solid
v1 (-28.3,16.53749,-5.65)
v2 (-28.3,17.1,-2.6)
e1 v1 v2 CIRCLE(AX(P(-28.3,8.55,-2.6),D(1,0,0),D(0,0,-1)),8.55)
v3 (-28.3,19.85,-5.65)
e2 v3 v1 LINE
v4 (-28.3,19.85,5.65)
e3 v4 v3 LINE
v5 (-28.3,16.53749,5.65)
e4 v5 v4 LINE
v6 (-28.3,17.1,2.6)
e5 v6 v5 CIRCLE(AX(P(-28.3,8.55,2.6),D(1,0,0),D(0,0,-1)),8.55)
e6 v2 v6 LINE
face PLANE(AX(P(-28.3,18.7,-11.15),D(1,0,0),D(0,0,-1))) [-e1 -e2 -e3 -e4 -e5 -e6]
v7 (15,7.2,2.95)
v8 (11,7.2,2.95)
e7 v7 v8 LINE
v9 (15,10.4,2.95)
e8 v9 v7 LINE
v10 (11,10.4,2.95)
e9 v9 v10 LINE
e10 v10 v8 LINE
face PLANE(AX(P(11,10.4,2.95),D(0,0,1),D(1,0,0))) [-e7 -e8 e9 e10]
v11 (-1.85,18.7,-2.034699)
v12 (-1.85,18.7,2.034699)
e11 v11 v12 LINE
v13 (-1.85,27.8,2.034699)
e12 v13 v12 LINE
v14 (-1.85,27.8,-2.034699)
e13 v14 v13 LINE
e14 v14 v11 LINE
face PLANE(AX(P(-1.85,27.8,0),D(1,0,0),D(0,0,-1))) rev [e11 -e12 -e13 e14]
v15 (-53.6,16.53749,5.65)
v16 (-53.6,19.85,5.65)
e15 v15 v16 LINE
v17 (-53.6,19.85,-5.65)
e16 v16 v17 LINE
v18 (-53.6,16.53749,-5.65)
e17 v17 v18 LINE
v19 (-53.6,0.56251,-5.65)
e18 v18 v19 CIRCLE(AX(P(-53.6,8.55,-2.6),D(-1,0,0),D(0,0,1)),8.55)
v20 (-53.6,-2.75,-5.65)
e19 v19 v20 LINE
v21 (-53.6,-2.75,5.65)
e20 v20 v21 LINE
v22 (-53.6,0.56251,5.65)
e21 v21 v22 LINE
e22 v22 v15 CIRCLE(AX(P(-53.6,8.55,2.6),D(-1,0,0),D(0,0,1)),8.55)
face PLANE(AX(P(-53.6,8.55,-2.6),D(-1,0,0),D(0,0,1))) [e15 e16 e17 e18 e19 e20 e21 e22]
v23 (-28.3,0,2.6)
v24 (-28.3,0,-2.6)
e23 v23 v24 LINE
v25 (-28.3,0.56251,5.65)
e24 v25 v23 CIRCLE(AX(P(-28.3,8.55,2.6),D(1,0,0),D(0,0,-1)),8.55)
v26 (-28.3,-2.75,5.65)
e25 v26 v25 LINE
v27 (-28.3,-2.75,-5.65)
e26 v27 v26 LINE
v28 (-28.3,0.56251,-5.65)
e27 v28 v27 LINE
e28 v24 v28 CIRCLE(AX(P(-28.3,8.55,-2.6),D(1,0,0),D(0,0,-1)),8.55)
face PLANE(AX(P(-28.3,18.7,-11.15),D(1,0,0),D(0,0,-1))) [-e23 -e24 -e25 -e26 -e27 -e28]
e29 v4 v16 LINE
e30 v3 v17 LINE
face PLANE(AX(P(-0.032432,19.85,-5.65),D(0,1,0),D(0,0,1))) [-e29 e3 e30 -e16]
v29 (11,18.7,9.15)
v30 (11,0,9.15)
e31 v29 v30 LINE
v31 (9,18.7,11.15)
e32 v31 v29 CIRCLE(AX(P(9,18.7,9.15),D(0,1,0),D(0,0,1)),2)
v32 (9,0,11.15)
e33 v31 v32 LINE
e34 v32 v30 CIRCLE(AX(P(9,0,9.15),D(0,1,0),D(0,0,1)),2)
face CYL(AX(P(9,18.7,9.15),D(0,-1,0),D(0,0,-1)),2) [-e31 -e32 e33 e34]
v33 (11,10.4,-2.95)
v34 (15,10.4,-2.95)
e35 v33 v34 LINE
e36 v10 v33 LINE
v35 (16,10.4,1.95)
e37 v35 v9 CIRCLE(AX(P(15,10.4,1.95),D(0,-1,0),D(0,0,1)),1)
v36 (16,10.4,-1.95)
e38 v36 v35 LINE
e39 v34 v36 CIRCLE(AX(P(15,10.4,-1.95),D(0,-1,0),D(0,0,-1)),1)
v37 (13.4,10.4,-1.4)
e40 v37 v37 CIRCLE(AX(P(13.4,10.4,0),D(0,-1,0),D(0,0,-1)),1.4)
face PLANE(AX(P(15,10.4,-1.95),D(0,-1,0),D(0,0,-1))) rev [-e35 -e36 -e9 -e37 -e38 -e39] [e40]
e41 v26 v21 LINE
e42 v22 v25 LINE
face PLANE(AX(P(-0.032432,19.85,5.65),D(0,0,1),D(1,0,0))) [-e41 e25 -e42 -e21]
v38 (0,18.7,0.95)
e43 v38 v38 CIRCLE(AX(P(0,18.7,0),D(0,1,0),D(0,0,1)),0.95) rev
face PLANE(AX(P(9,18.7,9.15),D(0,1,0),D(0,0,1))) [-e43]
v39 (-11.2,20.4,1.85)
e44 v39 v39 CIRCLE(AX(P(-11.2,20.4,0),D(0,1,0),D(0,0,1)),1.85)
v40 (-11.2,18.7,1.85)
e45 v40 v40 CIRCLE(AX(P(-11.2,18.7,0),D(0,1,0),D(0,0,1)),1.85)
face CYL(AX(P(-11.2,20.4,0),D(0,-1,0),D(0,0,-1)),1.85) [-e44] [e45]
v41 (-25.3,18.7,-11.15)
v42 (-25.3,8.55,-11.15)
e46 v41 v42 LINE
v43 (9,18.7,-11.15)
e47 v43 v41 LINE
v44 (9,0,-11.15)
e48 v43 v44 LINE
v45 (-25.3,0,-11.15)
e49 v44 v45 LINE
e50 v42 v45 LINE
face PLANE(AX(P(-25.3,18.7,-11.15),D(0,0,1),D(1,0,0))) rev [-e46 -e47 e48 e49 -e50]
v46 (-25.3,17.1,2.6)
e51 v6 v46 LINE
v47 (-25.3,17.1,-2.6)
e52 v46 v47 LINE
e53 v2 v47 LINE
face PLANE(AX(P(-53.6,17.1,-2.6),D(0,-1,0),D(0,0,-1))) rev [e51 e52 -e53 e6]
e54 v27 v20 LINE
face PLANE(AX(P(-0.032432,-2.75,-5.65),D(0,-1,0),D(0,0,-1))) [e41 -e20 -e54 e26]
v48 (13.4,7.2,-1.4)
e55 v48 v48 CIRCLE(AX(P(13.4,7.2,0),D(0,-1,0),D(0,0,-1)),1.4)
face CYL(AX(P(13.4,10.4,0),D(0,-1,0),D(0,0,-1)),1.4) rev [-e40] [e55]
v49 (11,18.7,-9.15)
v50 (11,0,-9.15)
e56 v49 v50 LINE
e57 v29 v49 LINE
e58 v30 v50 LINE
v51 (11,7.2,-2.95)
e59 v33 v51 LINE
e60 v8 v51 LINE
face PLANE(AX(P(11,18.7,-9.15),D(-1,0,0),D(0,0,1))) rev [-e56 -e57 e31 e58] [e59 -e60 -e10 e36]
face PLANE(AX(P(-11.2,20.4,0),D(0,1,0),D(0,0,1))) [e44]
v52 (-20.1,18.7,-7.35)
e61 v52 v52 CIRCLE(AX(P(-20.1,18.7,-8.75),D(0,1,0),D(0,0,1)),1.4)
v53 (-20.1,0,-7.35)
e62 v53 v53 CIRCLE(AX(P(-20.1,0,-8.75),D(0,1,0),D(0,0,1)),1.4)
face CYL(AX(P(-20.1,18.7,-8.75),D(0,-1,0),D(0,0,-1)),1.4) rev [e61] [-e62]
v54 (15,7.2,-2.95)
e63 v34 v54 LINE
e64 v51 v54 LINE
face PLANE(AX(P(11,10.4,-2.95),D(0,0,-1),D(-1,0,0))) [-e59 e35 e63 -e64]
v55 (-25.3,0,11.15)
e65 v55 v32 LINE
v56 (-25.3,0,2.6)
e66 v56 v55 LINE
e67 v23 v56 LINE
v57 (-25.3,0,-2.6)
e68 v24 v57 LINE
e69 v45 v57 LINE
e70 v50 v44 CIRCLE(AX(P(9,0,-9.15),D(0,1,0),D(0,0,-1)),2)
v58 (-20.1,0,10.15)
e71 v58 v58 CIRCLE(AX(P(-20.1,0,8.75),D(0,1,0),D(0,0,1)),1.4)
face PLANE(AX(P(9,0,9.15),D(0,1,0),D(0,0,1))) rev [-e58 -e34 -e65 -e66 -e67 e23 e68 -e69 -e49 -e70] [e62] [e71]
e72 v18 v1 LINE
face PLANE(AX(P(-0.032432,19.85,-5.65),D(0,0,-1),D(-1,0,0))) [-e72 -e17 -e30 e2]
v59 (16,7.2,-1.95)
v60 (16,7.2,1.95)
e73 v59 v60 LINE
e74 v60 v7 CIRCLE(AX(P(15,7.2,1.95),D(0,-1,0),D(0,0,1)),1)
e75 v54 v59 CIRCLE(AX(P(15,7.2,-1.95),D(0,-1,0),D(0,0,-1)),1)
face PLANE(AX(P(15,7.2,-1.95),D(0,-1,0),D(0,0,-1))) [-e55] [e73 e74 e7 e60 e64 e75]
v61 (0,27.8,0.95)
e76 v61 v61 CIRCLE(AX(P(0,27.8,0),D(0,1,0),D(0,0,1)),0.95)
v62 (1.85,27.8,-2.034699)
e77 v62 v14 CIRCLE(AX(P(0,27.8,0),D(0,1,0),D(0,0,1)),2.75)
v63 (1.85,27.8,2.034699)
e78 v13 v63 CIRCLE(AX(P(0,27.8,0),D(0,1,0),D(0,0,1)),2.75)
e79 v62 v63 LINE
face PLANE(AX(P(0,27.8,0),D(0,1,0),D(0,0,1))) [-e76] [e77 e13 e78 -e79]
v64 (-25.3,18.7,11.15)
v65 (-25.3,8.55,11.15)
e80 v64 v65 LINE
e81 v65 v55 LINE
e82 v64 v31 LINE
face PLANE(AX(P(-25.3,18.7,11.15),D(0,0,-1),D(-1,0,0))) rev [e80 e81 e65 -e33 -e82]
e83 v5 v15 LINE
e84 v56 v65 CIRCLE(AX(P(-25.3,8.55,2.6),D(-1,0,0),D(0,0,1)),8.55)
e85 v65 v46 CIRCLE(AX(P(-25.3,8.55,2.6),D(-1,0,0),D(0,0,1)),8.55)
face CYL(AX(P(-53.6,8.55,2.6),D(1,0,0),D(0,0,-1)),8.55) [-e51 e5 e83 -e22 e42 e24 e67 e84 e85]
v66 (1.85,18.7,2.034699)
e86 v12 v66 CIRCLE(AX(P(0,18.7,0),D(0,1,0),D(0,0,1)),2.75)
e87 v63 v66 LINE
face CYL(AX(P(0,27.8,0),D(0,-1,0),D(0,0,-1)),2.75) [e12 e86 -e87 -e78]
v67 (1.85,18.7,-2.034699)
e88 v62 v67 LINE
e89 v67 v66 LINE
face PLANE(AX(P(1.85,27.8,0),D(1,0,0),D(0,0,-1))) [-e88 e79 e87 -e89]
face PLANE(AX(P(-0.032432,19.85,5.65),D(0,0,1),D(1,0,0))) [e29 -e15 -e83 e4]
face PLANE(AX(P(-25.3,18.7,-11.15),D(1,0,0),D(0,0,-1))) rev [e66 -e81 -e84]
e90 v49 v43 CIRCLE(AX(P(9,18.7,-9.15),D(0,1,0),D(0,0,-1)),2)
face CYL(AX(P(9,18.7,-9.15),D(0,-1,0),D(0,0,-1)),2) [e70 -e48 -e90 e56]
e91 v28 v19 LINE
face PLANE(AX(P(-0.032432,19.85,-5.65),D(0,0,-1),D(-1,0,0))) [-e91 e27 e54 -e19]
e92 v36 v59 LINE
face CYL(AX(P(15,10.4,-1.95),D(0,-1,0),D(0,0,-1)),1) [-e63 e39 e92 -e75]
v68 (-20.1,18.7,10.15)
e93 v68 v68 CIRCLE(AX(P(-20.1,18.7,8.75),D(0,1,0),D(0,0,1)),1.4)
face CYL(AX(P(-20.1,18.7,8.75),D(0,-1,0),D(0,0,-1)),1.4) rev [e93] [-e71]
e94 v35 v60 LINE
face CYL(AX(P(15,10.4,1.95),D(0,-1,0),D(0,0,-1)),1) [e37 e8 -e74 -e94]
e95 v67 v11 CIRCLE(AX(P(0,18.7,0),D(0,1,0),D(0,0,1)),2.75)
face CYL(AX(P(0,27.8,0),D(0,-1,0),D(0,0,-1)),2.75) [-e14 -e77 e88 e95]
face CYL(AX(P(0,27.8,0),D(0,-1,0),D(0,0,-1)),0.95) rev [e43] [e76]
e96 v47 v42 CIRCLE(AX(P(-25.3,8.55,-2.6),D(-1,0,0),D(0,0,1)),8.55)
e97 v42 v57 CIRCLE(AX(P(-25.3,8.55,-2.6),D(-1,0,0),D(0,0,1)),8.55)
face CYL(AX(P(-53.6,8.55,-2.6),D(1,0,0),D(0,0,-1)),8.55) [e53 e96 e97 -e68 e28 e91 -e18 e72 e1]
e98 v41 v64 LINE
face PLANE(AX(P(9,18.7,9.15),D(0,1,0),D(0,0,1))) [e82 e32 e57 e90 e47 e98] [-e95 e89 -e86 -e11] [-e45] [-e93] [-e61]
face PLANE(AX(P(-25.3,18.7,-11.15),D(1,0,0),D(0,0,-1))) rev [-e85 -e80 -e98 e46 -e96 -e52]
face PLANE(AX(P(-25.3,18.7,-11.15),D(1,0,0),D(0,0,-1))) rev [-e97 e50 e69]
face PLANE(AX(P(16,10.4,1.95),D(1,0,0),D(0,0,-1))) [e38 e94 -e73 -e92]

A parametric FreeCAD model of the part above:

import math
import FreeCAD as App
import Part
import Sketcher

doc = App.newDocument("Part")
body = doc.addObject("PartDesign::Body", "Body")

# Sketch on XZ plane
sketch1 = body.newObject("Sketcher::SketchObject", "Sketch")
sketch1.AttachmentSupport = (doc.getObject("XZ_Plane"), [""])
sketch1.MapMode = "FlatFace"
sketch1.addGeometry([
    Part.LineSegment(App.Vector(9, -11.2, 0), App.Vector(-25.3, -11.2, 0)),  # 0
    Part.LineSegment(App.Vector(-25.3, -11.2, 0), App.Vector(-25.3, 11.2, 0)),  # 1
    Part.LineSegment(App.Vector(-25.3, 11.2, 0), App.Vector(9, 11.2, 0)),  # 2
    Part.ArcOfCircle(Part.Circle(App.Vector(9, 9.1, 0), App.Vector(0, 0, 1), 2), math.radians(0), math.radians(90)),  # 3
    Part.LineSegment(App.Vector(11, 9.2, 0), App.Vector(11, -9.2, 0)),  # 4
    Part.ArcOfCircle(Part.Circle(App.Vector(9, -9.1, 0), App.Vector(0, 0, 1), 2), math.radians(-90), math.radians(0)),  # 5
    Part.Circle(App.Vector(-20.1, 8.8, 0), App.Vector(0, 0, 1), 1.4),  # 6
    Part.Circle(App.Vector(-20.1, -8.8, 0), App.Vector(0, 0, 1), 1.4),  # 7
], False)
sketch1.addConstraint([
    Sketcher.Constraint("Coincident", 0, 2, 1, 1),
    Sketcher.Constraint("Coincident", 1, 2, 2, 1),
    Sketcher.Constraint("Tangent", 2, 2, 3, 2),
    Sketcher.Constraint("Tangent", 3, 1, 4, 1),
    Sketcher.Constraint("Tangent", 4, 2, 5, 2),
    Sketcher.Constraint("Tangent", 5, 1, 0, 1),
    Sketcher.Constraint("Horizontal", 0),
    Sketcher.Constraint("Vertical", 1),
    Sketcher.Constraint("Horizontal", 2),
    Sketcher.Constraint("Vertical", 4),
    Sketcher.Constraint("Equal", 3, 5),
    Sketcher.Constraint("Equal", 6, 7),
    Sketcher.Constraint("Symmetric", 6, 3, 7, 3, -1),
    Sketcher.Constraint("Radius", 3, 2.0),
    Sketcher.Constraint("Diameter", 6, 2.8),
    Sketcher.Constraint("DistanceX", 0, 2, 0, 1, 34.3),
    Sketcher.Constraint("DistanceY", 1, 1, 1, 2, 22.3),
    Sketcher.Constraint("DistanceX", -1, 1, 3, 3, 9.0),
    Sketcher.Constraint("DistanceX", 6, 3, -1, 1, 20.1),
    Sketcher.Constraint("DistanceY", 6, 3, 3, 3, 0.4),
    Sketcher.Constraint("DistanceY", 7, 3, 6, 3, 17.5),
])
pad1 = body.newObject("PartDesign::Pad", "Pad")
pad1.Profile = sketch1
pad1.Length = 18.7
pad1.Reversed = True

# Sketch on XZ plane
sketch2 = body.newObject("Sketcher::SketchObject", "Sketch001")
sketch2.AttachmentSupport = (doc.getObject("XZ_Plane"), [""])
sketch2.MapMode = "FlatFace"
sketch2.AttachmentOffset = App.Placement(App.Vector(0, 0, -18.7), App.Rotation())
sketch2.addGeometry([
    Part.ArcOfCircle(Part.Circle(App.Vector(0, 0, 0), App.Vector(0, 0, 1), 2.8), math.radians(-132), math.radians(-48)),  # 0
    Part.LineSegment(App.Vector(-1.9, -2, 0), App.Vector(-1.9, 2, 0)),  # 1
    Part.ArcOfCircle(Part.Circle(App.Vector(0, 0, 0), App.Vector(0, 0, 1), 2.8), math.radians(48), math.radians(132)),  # 2
    Part.LineSegment(App.Vector(1.9, 2, 0), App.Vector(1.9, -2, 0)),  # 3
    Part.Circle(App.Vector(0, 0, 0), App.Vector(0, 0, 1), 0.9),  # 4
], False)
sketch2.addConstraint([
    Sketcher.Constraint("Coincident", 0, 1, 1, 1),
    Sketcher.Constraint("Coincident", 1, 2, 2, 2),
    Sketcher.Constraint("Coincident", 2, 1, 3, 1),
    Sketcher.Constraint("Coincident", 3, 2, 0, 2),
    Sketcher.Constraint("Vertical", 1),
    Sketcher.Constraint("Vertical", 3),
    Sketcher.Constraint("Coincident", 0, 3, -1, 1),
    Sketcher.Constraint("Coincident", 2, 3, -1, 1),
    Sketcher.Constraint("Coincident", 4, 3, -1, 1),
    Sketcher.Constraint("Equal", 0, 2),
    Sketcher.Constraint("Horizontal", 1, 2, 2, 1),
    Sketcher.Constraint("Diameter", 4, 1.9),
    Sketcher.Constraint("Radius", 0, 2.75),
    Sketcher.Constraint("DistanceX", 1, 2, 2, 1, 3.7),
])
pad2 = body.newObject("PartDesign::Pad", "Pad001")
pad2.Profile = sketch2
pad2.Length = 9.1
pad2.Reversed = True

# Sketch on XZ plane
sketch3 = body.newObject("Sketcher::SketchObject", "Sketch002")
sketch3.AttachmentSupport = (doc.getObject("XZ_Plane"), [""])
sketch3.MapMode = "FlatFace"
sketch3.AttachmentOffset = App.Placement(App.Vector(0, 0, -18.7), App.Rotation())
sketch3.addGeometry(Part.Circle(App.Vector(-11.2, 0, 0), App.Vector(0, 0, 1), 1.9), False)
sketch3.addConstraint([
    Sketcher.Constraint("PointOnObject", 0, 3, -1),
    Sketcher.Constraint("Diameter", 0, 3.7),
    Sketcher.Constraint("DistanceX", 0, 3, -1, 1, 11.2),
])
pad3 = body.newObject("PartDesign::Pad", "Pad002")
pad3.Profile = sketch3
pad3.Length = 1.7
pad3.Reversed = True

# Sketch on XZ plane
sketch4 = body.newObject("Sketcher::SketchObject", "Sketch003")
sketch4.AttachmentSupport = (doc.getObject("XZ_Plane"), [""])
sketch4.MapMode = "FlatFace"
sketch4.AttachmentOffset = App.Placement(App.Vector(0, 0, -7.2), App.Rotation())
sketch4.addGeometry([
    Part.LineSegment(App.Vector(15, 3, 0), App.Vector(11, 3, 0)),  # 0
    Part.LineSegment(App.Vector(11, 3, 0), App.Vector(11, -3, 0)),  # 1
    Part.LineSegment(App.Vector(11, -3, 0), App.Vector(15, -3, 0)),  # 2
    Part.ArcOfCircle(Part.Circle(App.Vector(15, -1.9, 0), App.Vector(0, 0, 1), 1), math.radians(-90), math.radians(0)),  # 3
    Part.LineSegment(App.Vector(16, -1.9, 0), App.Vector(16, 1.9, 0)),  # 4
    Part.ArcOfCircle(Part.Circle(App.Vector(15, 1.9, 0), App.Vector(0, 0, 1), 1), math.radians(0), math.radians(90)),  # 5
    Part.Circle(App.Vector(13.4, 0, 0), App.Vector(0, 0, 1), 1.4),  # 6
], False)
sketch4.addConstraint([
    Sketcher.Constraint("Coincident", 0, 2, 1, 1),
    Sketcher.Constraint("Coincident", 1, 2, 2, 1),
    Sketcher.Constraint("Tangent", 2, 2, 3, 1),
    Sketcher.Constraint("Tangent", 3, 2, 4, 1),
    Sketcher.Constraint("Tangent", 4, 2, 5, 1),
    Sketcher.Constraint("Tangent", 5, 2, 0, 1),
    Sketcher.Constraint("Horizontal", 0),
    Sketcher.Constraint("Vertical", 1),
    Sketcher.Constraint("Horizontal", 2),
    Sketcher.Constraint("Vertical", 4),
    Sketcher.Constraint("Equal", 3, 5),
    Sketcher.Constraint("PointOnObject", 6, 3, -1),
    Sketcher.Constraint("Radius", 3, 1.0),
    Sketcher.Constraint("Diameter", 6, 2.8),
    Sketcher.Constraint("DistanceX", 0, 2, 0, 1, 4.0),
    Sketcher.Constraint("DistanceY", 1, 2, 1, 1, 5.9),
    Sketcher.Constraint("DistanceX", -1, 1, 3, 3, 15.0),
    Sketcher.Constraint("DistanceX", -1, 1, 6, 3, 13.4),
    Sketcher.Constraint("DistanceY", 3, 3, -1, 1, 1.95),
])
pad4 = body.newObject("PartDesign::Pad", "Pad003")
pad4.Profile = sketch4
pad4.Length = 3.2
pad4.Reversed = True

# Sketch on YZ plane
sketch5 = body.newObject("Sketcher::SketchObject", "Sketch004")
sketch5.AttachmentSupport = (doc.getObject("YZ_Plane"), [""])
sketch5.MapMode = "FlatFace"
sketch5.AttachmentOffset = App.Placement(App.Vector(0, 0, -25.3), App.Rotation())
sketch5.addGeometry([
    Part.LineSegment(App.Vector(17, 3, 0), App.Vector(17, -3, 0)),
    Part.ArcOfCircle(Part.Circle(App.Vector(9, -3, 0), App.Vector(0, 0, 1), 9), math.radians(180), math.radians(360)),
    Part.LineSegment(App.Vector(0, -3, 0), App.Vector(0, 3, 0)),
    Part.ArcOfCircle(Part.Circle(App.Vector(9, 3, 0), App.Vector(0, 0, 1), 9), math.radians(0), math.radians(180)),
], False)
sketch5.addConstraint([
    Sketcher.Constraint("Tangent", 0, 2, 1, 2),
    Sketcher.Constraint("Tangent", 1, 1, 2, 1),
    Sketcher.Constraint("Tangent", 2, 2, 3, 2),
    Sketcher.Constraint("Tangent", 3, 1, 0, 1),
    Sketcher.Constraint("Vertical", 0),
    Sketcher.Constraint("Vertical", 2),
    Sketcher.Constraint("Symmetric", 1, 1, 2, 2, -1, 1),
    Sketcher.Constraint("Radius", 1, 8.55),
    Sketcher.Constraint("DistanceY", 0, 2, 0, 1, 5.2),
])
pad5 = body.newObject("PartDesign::Pad", "Pad004")
pad5.Profile = sketch5
pad5.Length = 28.3
pad5.Reversed = True

# Sketch on YZ plane
sketch6 = body.newObject("Sketcher::SketchObject", "Sketch005")
sketch6.AttachmentSupport = (doc.getObject("YZ_Plane"), [""])
sketch6.MapMode = "FlatFace"
sketch6.AttachmentOffset = App.Placement(App.Vector(0, 0, -53.6), App.Rotation())
sketch6.addGeometry([
    Part.LineSegment(App.Vector(20, -6, 0), App.Vector(-3, -6, 0)),
    Part.LineSegment(App.Vector(-3, -6, 0), App.Vector(-3, 6, 0)),
    Part.LineSegment(App.Vector(-3, 6, 0), App.Vector(20, 6, 0)),
    Part.LineSegment(App.Vector(20, 6, 0), App.Vector(20, -6, 0)),
], False)
sketch6.addConstraint([
    Sketcher.Constraint("Coincident", 0, 2, 1, 1),
    Sketcher.Constraint("Coincident", 1, 2, 2, 1),
    Sketcher.Constraint("Coincident", 2, 2, 3, 1),
    Sketcher.Constraint("Coincident", 3, 2, 0, 1),
    Sketcher.Constraint("Horizontal", 0),
    Sketcher.Constraint("Vertical", 1),
    Sketcher.Constraint("Horizontal", 2),
    Sketcher.Constraint("Vertical", 3),
    Sketcher.Constraint("DistanceX", 0, 2, 0, 1, 22.6),
    Sketcher.Constraint("DistanceY", 1, 1, 1, 2, 11.3),
    Sketcher.Constraint("DistanceX", 0, 2, -1, 1, 2.75),
    Sketcher.Constraint("DistanceY", 0, 2, -1, 1, 5.65),
])
pad6 = body.newObject("PartDesign::Pad", "Pad005")
pad6.Profile = sketch6
pad6.Length = 25.3

doc.recompute()
